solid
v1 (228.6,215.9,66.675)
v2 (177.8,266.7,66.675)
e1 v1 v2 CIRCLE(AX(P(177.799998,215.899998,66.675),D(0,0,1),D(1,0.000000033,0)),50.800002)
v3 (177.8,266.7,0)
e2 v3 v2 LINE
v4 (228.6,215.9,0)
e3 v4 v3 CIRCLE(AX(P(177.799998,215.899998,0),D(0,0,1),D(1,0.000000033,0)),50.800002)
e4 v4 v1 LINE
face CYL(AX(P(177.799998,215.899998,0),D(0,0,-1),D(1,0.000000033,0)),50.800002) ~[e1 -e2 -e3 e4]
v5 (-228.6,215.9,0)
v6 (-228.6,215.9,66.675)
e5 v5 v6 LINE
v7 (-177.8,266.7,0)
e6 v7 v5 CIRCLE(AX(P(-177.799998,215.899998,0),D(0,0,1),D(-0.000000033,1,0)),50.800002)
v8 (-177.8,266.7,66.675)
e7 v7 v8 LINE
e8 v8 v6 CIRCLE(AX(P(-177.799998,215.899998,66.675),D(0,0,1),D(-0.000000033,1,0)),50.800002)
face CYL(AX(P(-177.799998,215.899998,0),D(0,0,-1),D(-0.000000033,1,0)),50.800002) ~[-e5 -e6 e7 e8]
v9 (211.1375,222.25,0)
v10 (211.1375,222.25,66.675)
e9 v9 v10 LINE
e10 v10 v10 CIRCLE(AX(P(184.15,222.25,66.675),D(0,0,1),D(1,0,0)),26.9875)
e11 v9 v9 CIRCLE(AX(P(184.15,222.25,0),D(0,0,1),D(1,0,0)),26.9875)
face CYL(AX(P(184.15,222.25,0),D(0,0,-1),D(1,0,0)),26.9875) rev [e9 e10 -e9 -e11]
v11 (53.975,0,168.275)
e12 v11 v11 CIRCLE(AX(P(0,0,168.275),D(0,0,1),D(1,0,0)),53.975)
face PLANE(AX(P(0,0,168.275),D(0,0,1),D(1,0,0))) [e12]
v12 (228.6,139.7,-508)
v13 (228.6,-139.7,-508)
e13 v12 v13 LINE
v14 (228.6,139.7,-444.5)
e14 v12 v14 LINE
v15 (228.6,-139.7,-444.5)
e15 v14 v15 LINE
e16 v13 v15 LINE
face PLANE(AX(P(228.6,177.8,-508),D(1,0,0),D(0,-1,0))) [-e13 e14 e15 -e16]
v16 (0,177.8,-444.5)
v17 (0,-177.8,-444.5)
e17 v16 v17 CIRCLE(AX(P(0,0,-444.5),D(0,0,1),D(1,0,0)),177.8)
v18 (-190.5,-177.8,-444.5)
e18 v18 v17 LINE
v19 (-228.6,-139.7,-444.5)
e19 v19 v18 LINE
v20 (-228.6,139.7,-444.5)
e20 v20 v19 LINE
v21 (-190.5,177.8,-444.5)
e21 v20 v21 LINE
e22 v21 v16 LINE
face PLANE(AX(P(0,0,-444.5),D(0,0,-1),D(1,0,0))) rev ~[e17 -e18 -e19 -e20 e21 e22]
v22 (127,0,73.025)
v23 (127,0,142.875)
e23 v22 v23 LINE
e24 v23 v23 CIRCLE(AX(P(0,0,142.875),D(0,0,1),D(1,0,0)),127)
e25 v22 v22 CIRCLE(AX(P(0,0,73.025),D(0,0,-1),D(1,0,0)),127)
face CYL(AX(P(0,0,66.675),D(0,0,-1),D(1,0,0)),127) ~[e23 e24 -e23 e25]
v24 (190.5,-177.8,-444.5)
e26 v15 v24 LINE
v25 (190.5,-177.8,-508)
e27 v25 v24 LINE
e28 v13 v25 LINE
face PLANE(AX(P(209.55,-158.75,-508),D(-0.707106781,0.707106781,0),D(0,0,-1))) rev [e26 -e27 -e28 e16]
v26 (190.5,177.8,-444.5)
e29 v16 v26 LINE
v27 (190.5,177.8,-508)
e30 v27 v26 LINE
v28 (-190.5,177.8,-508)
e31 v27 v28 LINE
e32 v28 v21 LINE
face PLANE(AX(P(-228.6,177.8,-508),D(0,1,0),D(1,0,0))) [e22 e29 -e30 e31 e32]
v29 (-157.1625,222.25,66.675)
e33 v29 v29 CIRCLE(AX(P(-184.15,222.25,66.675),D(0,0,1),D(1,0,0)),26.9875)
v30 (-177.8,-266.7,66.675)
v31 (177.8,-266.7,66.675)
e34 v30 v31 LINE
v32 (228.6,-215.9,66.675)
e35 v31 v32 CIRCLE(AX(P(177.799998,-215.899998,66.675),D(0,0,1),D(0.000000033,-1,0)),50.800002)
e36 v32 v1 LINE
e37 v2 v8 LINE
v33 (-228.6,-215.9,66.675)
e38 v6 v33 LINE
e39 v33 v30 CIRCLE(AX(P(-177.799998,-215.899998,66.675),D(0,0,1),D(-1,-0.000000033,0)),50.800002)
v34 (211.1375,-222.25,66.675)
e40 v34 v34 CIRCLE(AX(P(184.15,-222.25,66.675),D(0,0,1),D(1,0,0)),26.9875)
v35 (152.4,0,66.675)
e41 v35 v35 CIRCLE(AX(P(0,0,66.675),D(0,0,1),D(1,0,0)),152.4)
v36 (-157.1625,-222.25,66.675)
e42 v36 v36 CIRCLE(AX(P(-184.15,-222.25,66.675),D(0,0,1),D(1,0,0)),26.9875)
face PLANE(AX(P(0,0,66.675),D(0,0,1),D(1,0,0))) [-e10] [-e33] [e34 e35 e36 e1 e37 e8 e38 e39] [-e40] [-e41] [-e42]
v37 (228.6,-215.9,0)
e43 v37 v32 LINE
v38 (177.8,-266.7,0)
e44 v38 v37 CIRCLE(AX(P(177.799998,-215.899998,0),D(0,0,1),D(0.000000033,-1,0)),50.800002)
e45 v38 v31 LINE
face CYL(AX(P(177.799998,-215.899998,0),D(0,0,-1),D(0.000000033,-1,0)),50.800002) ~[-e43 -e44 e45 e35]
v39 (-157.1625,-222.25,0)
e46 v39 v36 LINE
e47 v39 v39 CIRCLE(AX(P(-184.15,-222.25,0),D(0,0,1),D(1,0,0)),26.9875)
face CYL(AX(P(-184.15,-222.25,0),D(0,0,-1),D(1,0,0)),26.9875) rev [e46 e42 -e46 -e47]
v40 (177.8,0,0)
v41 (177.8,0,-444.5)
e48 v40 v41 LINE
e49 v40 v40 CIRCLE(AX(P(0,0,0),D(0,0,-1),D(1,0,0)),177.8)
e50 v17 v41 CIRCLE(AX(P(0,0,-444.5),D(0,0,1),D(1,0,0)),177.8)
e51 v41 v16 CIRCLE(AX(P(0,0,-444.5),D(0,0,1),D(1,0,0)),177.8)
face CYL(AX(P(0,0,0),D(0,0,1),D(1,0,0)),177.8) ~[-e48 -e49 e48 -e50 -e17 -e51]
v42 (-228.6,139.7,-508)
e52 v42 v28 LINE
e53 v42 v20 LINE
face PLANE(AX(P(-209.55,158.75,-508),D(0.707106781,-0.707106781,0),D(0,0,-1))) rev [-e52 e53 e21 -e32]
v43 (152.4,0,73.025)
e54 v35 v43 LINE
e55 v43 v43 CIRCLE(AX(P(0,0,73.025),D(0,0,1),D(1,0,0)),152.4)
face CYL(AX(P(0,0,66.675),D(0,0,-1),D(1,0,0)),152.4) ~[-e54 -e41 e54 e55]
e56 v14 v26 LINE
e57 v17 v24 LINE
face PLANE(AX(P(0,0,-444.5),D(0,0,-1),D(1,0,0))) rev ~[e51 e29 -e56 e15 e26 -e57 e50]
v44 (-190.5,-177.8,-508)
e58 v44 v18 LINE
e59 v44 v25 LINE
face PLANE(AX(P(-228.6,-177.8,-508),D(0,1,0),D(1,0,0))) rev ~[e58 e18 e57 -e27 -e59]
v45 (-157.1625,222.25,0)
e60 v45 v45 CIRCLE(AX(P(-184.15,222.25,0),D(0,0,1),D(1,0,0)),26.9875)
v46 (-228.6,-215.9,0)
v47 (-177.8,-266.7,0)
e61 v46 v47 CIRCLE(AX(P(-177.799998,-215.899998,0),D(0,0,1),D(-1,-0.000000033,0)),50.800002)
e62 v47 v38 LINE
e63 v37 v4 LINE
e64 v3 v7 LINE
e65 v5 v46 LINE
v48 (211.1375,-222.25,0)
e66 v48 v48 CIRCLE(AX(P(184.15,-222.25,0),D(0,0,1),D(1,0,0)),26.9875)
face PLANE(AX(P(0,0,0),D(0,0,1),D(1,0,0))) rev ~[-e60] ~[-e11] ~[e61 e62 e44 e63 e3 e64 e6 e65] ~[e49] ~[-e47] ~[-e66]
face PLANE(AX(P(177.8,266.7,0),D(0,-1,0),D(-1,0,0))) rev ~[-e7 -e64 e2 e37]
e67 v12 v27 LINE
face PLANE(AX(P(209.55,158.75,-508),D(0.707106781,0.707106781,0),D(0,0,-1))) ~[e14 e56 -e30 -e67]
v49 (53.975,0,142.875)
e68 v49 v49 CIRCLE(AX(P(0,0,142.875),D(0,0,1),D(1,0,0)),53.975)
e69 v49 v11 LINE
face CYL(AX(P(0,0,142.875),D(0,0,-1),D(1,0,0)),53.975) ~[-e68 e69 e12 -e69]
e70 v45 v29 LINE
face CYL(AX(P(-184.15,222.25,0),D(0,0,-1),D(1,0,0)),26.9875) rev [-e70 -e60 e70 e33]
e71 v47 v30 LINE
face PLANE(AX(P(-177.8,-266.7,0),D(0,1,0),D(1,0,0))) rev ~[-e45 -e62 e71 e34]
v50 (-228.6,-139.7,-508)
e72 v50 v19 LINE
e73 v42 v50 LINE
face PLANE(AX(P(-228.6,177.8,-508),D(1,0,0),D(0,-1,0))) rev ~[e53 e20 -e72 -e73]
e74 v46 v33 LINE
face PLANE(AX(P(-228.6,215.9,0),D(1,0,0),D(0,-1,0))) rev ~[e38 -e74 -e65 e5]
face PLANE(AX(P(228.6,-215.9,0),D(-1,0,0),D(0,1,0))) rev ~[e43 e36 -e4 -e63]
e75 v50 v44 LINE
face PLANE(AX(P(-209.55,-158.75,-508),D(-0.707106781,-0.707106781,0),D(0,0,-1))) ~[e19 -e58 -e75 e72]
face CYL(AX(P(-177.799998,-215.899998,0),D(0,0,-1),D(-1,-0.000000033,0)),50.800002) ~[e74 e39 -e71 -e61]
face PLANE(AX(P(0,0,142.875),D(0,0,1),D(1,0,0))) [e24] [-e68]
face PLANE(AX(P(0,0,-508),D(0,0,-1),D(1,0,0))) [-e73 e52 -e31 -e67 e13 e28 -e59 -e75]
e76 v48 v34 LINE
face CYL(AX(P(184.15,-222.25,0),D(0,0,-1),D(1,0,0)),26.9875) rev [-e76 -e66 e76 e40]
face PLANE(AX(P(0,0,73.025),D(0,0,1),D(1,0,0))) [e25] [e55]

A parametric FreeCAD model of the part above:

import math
import FreeCAD as App
import Part
import Sketcher
from FreeCAD import Vector
Q = App.Units.Quantity


def edges_at(feature, points):
    """Names of the edges that pass closest to the given points."""
    edges = feature.Shape.Edges
    near = lambda p: min(range(len(edges)), key=lambda i: edges[i].distToShape(Part.Vertex(*p))[0])
    return sorted({f"Edge{near(p) + 1}" for p in points})

doc = App.newDocument("Part")
body = doc.addObject("PartDesign::Body", "Body")

sketch1 = doc.addObject("Sketcher::SketchObject", "Sketch")
body.addObject(sketch1)
sketch1.AttachmentSupport = (doc.XY_Plane, [""])
sketch1.MapMode = "FlatFace"
sketch1.addGeometry(Part.LineSegment(Vector(177.8, 266.7, 0), Vector(-177.8, 266.7, 0)), False)
sketch1.addGeometry(Part.ArcOfCircle(Part.Circle(Vector(-177.799998, 215.899998, 0), Vector(0, 0, 1), 50.800002), math.radians(90.000002), math.radians(179.999998)), False)
sketch1.addGeometry(Part.LineSegment(Vector(-228.6, 215.9, 0), Vector(-228.6, -215.9, 0)), False)
sketch1.addGeometry(Part.ArcOfCircle(Part.Circle(Vector(-177.799998, -215.899998, 0), Vector(0, 0, 1), 50.800002), math.radians(-179.999998), math.radians(-90.000002)), False)
sketch1.addGeometry(Part.LineSegment(Vector(-177.8, -266.7, 0), Vector(177.8, -266.7, 0)), False)
sketch1.addGeometry(Part.ArcOfCircle(Part.Circle(Vector(177.799998, -215.899998, 0), Vector(0, 0, 1), 50.800002), math.radians(-89.999998), math.radians(-0.000002)), False)
sketch1.addGeometry(Part.LineSegment(Vector(228.6, -215.9, 0), Vector(228.6, 215.9, 0)), False)
sketch1.addGeometry(Part.ArcOfCircle(Part.Circle(Vector(177.799998, 215.899998, 0), Vector(0, 0, 1), 50.800002), math.radians(0.000002), math.radians(89.999998)), False)
sketch1.addGeometry(Part.Circle(Vector(-184.15, -222.25, 0), Vector(0, 0, 1), 26.9875), False)
sketch1.addGeometry(Part.Circle(Vector(184.15, -222.25, 0), Vector(0, 0, 1), 26.9875), False)
sketch1.addGeometry(Part.Circle(Vector(-184.15, 222.25, 0), Vector(0, 0, 1), 26.9875), False)
sketch1.addGeometry(Part.Circle(Vector(184.15, 222.25, 0), Vector(0, 0, 1), 26.9875), False)
sketch1.addConstraint(Sketcher.Constraint("Tangent", 0, 2, 1, 1))
sketch1.addConstraint(Sketcher.Constraint("Tangent", 1, 2, 2, 1))
sketch1.addConstraint(Sketcher.Constraint("Tangent", 2, 2, 3, 1))
sketch1.addConstraint(Sketcher.Constraint("Tangent", 3, 2, 4, 1))
sketch1.addConstraint(Sketcher.Constraint("Tangent", 4, 2, 5, 1))
sketch1.addConstraint(Sketcher.Constraint("Tangent", 5, 2, 6, 1))
sketch1.addConstraint(Sketcher.Constraint("Tangent", 6, 2, 7, 1))
sketch1.addConstraint(Sketcher.Constraint("Tangent", 7, 2, 0, 1))
sketch1.addConstraint(Sketcher.Constraint("Horizontal", 0))
sketch1.addConstraint(Sketcher.Constraint("Vertical", 2))
sketch1.addConstraint(Sketcher.Constraint("Horizontal", 4))
sketch1.addConstraint(Sketcher.Constraint("Vertical", 6))
sketch1.addConstraint(Sketcher.Constraint("Equal", 1, 3))
sketch1.addConstraint(Sketcher.Constraint("Equal", 3, 5))
sketch1.addConstraint(Sketcher.Constraint("Equal", 5, 7))
sketch1.addConstraint(Sketcher.Constraint("Equal", 8, 9))
sketch1.addConstraint(Sketcher.Constraint("Equal", 9, 10))
sketch1.addConstraint(Sketcher.Constraint("Equal", 10, 11))
sketch1.addConstraint(Sketcher.Constraint("Symmetric", 1, 3, 5, 3, -1, 1))
sketch1.addConstraint(Sketcher.Constraint("Symmetric", 9, 3, 10, 3, -1, 1))
sketch1.addConstraint(Sketcher.Constraint("Symmetric", 8, 3, 11, 3, -1, 1))
sketch1.addConstraint(Sketcher.Constraint("Symmetric", 8, 3, 9, 3, -2))
sketch1.addConstraint(Sketcher.Constraint("Radius", 1, Q("2.0000001 in")))
sketch1.addConstraint(Sketcher.Constraint("DistanceX", 0, 2, 0, 1, Q("14 in")))
sketch1.addConstraint(Sketcher.Constraint("DistanceY", 2, 2, 2, 1, Q("17 in")))
sketch1.addConstraint(Sketcher.Constraint("Diameter", 8, Q("2.125 in")))
sketch1.addConstraint(Sketcher.Constraint("DistanceX", 8, 3, 9, 3, Q("14.5 in")))
sketch1.addConstraint(Sketcher.Constraint("DistanceY", 8, 3, 10, 3, Q("17.5 in")))
pad1 = doc.addObject("PartDesign::Pad", "Pad")
body.addObject(pad1)
pad1.Profile = sketch1
pad1.Length = Q("2.625 in")

sketch2 = doc.addObject("Sketcher::SketchObject", "Sketch001")
body.addObject(sketch2)
sketch2.AttachmentSupport = (doc.XY_Plane, [""])
sketch2.MapMode = "FlatFace"
sketch2.AttachmentOffset = App.Placement(Vector(0, 0, 2.625 * 25.4), App.Rotation())
sketch2.addGeometry(Part.Circle(Vector(0, 0, 0), Vector(0, 0, 1), 152.4), False)
sketch2.addConstraint(Sketcher.Constraint("Coincident", 0, 3, -1, 1))
sketch2.addConstraint(Sketcher.Constraint("Diameter", 0, Q("12 in")))
pad2 = doc.addObject("PartDesign::Pad", "Pad001")
body.addObject(pad2)
pad2.Profile = sketch2
pad2.Length = Q("0.25 in")

sketch3 = doc.addObject("Sketcher::SketchObject", "Sketch002")
body.addObject(sketch3)
sketch3.AttachmentSupport = (doc.XY_Plane, [""])
sketch3.MapMode = "FlatFace"
sketch3.AttachmentOffset = App.Placement(Vector(0, 0, 2.625 * 25.4), App.Rotation())
sketch3.addGeometry(Part.Circle(Vector(0, 0, 0), Vector(0, 0, 1), 127), False)
sketch3.addConstraint(Sketcher.Constraint("Coincident", 0, 3, -1, 1))
sketch3.addConstraint(Sketcher.Constraint("Diameter", 0, Q("10 in")))
pad3 = doc.addObject("PartDesign::Pad", "Pad002")
body.addObject(pad3)
pad3.Profile = sketch3
pad3.Length = Q("3 in")

sketch4 = doc.addObject("Sketcher::SketchObject", "Sketch003")
body.addObject(sketch4)
sketch4.AttachmentSupport = (doc.XY_Plane, [""])
sketch4.MapMode = "FlatFace"
sketch4.AttachmentOffset = App.Placement(Vector(0, 0, 5.625 * 25.4), App.Rotation())
sketch4.addGeometry(Part.Circle(Vector(0, 0, 0), Vector(0, 0, 1), 53.975), False)
sketch4.addConstraint(Sketcher.Constraint("Coincident", 0, 3, -1, 1))
sketch4.addConstraint(Sketcher.Constraint("Diameter", 0, Q("4.25 in")))
pad4 = doc.addObject("PartDesign::Pad", "Pad003")
body.addObject(pad4)
pad4.Profile = sketch4
pad4.Length = Q("1 in")

sketch5 = doc.addObject("Sketcher::SketchObject", "Sketch004")
body.addObject(sketch5)
sketch5.AttachmentSupport = (doc.XY_Plane, [""])
sketch5.MapMode = "FlatFace"
sketch5.addGeometry(Part.Circle(Vector(0, 0, 0), Vector(0, 0, 1), 177.8), False)
sketch5.addConstraint(Sketcher.Constraint("Coincident", 0, 3, -1, 1))
sketch5.addConstraint(Sketcher.Constraint("Diameter", 0, Q("14 in")))
pad5 = doc.addObject("PartDesign::Pad", "Pad004")
body.addObject(pad5)
pad5.Profile = sketch5
pad5.Length = Q("20 in")
pad5.Reversed = True

sketch6 = doc.addObject("Sketcher::SketchObject", "Sketch005")
body.addObject(sketch6)
sketch6.AttachmentSupport = (doc.XY_Plane, [""])
sketch6.MapMode = "FlatFace"
sketch6.AttachmentOffset = App.Placement(Vector(0, 0, -20 * 25.4), App.Rotation())
sketch6.addGeometry(Part.LineSegment(Vector(-228.6, -177.8, 0), Vector(-228.6, 177.8, 0)), False)
sketch6.addGeometry(Part.LineSegment(Vector(-228.6, 177.8, 0), Vector(228.6, 177.8, 0)), False)
sketch6.addGeometry(Part.LineSegment(Vector(228.6, 177.8, 0), Vector(228.6, -177.8, 0)), False)
sketch6.addGeometry(Part.LineSegment(Vector(228.6, -177.8, 0), Vector(-228.6, -177.8, 0)), False)
sketch6.addConstraint(Sketcher.Constraint("Coincident", 0, 2, 1, 1))
sketch6.addConstraint(Sketcher.Constraint("Coincident", 1, 2, 2, 1))
sketch6.addConstraint(Sketcher.Constraint("Coincident", 2, 2, 3, 1))
sketch6.addConstraint(Sketcher.Constraint("Coincident", 3, 2, 0, 1))
sketch6.addConstraint(Sketcher.Constraint("Vertical", 0))
sketch6.addConstraint(Sketcher.Constraint("Horizontal", 1))
sketch6.addConstraint(Sketcher.Constraint("Vertical", 2))
sketch6.addConstraint(Sketcher.Constraint("Horizontal", 3))
sketch6.addConstraint(Sketcher.Constraint("Symmetric", 0, 2, 2, 2, -1, 1))
sketch6.addConstraint(Sketcher.Constraint("DistanceX", 1, 1, 1, 2, Q("18 in")))
sketch6.addConstraint(Sketcher.Constraint("DistanceY", 0, 1, 0, 2, Q("14 in")))
pad6 = doc.addObject("PartDesign::Pad", "Pad005")
body.addObject(pad6)
pad6.Profile = sketch6
pad6.Length = Q("2.5 in")
doc.recompute()

chamfer = doc.addObject("PartDesign::Chamfer", "Chamfer")
body.addObject(chamfer)
chamfer.Base = (pad6, edges_at(pad6, [
    (228.6, -177.8, -476.25),
    (-228.6, -177.8, -476.25),
    (228.6, 177.8, -476.25),
    (-228.6, 177.8, -476.25),
]))
chamfer.Size = Q("1.5 in")

doc.recompute()
